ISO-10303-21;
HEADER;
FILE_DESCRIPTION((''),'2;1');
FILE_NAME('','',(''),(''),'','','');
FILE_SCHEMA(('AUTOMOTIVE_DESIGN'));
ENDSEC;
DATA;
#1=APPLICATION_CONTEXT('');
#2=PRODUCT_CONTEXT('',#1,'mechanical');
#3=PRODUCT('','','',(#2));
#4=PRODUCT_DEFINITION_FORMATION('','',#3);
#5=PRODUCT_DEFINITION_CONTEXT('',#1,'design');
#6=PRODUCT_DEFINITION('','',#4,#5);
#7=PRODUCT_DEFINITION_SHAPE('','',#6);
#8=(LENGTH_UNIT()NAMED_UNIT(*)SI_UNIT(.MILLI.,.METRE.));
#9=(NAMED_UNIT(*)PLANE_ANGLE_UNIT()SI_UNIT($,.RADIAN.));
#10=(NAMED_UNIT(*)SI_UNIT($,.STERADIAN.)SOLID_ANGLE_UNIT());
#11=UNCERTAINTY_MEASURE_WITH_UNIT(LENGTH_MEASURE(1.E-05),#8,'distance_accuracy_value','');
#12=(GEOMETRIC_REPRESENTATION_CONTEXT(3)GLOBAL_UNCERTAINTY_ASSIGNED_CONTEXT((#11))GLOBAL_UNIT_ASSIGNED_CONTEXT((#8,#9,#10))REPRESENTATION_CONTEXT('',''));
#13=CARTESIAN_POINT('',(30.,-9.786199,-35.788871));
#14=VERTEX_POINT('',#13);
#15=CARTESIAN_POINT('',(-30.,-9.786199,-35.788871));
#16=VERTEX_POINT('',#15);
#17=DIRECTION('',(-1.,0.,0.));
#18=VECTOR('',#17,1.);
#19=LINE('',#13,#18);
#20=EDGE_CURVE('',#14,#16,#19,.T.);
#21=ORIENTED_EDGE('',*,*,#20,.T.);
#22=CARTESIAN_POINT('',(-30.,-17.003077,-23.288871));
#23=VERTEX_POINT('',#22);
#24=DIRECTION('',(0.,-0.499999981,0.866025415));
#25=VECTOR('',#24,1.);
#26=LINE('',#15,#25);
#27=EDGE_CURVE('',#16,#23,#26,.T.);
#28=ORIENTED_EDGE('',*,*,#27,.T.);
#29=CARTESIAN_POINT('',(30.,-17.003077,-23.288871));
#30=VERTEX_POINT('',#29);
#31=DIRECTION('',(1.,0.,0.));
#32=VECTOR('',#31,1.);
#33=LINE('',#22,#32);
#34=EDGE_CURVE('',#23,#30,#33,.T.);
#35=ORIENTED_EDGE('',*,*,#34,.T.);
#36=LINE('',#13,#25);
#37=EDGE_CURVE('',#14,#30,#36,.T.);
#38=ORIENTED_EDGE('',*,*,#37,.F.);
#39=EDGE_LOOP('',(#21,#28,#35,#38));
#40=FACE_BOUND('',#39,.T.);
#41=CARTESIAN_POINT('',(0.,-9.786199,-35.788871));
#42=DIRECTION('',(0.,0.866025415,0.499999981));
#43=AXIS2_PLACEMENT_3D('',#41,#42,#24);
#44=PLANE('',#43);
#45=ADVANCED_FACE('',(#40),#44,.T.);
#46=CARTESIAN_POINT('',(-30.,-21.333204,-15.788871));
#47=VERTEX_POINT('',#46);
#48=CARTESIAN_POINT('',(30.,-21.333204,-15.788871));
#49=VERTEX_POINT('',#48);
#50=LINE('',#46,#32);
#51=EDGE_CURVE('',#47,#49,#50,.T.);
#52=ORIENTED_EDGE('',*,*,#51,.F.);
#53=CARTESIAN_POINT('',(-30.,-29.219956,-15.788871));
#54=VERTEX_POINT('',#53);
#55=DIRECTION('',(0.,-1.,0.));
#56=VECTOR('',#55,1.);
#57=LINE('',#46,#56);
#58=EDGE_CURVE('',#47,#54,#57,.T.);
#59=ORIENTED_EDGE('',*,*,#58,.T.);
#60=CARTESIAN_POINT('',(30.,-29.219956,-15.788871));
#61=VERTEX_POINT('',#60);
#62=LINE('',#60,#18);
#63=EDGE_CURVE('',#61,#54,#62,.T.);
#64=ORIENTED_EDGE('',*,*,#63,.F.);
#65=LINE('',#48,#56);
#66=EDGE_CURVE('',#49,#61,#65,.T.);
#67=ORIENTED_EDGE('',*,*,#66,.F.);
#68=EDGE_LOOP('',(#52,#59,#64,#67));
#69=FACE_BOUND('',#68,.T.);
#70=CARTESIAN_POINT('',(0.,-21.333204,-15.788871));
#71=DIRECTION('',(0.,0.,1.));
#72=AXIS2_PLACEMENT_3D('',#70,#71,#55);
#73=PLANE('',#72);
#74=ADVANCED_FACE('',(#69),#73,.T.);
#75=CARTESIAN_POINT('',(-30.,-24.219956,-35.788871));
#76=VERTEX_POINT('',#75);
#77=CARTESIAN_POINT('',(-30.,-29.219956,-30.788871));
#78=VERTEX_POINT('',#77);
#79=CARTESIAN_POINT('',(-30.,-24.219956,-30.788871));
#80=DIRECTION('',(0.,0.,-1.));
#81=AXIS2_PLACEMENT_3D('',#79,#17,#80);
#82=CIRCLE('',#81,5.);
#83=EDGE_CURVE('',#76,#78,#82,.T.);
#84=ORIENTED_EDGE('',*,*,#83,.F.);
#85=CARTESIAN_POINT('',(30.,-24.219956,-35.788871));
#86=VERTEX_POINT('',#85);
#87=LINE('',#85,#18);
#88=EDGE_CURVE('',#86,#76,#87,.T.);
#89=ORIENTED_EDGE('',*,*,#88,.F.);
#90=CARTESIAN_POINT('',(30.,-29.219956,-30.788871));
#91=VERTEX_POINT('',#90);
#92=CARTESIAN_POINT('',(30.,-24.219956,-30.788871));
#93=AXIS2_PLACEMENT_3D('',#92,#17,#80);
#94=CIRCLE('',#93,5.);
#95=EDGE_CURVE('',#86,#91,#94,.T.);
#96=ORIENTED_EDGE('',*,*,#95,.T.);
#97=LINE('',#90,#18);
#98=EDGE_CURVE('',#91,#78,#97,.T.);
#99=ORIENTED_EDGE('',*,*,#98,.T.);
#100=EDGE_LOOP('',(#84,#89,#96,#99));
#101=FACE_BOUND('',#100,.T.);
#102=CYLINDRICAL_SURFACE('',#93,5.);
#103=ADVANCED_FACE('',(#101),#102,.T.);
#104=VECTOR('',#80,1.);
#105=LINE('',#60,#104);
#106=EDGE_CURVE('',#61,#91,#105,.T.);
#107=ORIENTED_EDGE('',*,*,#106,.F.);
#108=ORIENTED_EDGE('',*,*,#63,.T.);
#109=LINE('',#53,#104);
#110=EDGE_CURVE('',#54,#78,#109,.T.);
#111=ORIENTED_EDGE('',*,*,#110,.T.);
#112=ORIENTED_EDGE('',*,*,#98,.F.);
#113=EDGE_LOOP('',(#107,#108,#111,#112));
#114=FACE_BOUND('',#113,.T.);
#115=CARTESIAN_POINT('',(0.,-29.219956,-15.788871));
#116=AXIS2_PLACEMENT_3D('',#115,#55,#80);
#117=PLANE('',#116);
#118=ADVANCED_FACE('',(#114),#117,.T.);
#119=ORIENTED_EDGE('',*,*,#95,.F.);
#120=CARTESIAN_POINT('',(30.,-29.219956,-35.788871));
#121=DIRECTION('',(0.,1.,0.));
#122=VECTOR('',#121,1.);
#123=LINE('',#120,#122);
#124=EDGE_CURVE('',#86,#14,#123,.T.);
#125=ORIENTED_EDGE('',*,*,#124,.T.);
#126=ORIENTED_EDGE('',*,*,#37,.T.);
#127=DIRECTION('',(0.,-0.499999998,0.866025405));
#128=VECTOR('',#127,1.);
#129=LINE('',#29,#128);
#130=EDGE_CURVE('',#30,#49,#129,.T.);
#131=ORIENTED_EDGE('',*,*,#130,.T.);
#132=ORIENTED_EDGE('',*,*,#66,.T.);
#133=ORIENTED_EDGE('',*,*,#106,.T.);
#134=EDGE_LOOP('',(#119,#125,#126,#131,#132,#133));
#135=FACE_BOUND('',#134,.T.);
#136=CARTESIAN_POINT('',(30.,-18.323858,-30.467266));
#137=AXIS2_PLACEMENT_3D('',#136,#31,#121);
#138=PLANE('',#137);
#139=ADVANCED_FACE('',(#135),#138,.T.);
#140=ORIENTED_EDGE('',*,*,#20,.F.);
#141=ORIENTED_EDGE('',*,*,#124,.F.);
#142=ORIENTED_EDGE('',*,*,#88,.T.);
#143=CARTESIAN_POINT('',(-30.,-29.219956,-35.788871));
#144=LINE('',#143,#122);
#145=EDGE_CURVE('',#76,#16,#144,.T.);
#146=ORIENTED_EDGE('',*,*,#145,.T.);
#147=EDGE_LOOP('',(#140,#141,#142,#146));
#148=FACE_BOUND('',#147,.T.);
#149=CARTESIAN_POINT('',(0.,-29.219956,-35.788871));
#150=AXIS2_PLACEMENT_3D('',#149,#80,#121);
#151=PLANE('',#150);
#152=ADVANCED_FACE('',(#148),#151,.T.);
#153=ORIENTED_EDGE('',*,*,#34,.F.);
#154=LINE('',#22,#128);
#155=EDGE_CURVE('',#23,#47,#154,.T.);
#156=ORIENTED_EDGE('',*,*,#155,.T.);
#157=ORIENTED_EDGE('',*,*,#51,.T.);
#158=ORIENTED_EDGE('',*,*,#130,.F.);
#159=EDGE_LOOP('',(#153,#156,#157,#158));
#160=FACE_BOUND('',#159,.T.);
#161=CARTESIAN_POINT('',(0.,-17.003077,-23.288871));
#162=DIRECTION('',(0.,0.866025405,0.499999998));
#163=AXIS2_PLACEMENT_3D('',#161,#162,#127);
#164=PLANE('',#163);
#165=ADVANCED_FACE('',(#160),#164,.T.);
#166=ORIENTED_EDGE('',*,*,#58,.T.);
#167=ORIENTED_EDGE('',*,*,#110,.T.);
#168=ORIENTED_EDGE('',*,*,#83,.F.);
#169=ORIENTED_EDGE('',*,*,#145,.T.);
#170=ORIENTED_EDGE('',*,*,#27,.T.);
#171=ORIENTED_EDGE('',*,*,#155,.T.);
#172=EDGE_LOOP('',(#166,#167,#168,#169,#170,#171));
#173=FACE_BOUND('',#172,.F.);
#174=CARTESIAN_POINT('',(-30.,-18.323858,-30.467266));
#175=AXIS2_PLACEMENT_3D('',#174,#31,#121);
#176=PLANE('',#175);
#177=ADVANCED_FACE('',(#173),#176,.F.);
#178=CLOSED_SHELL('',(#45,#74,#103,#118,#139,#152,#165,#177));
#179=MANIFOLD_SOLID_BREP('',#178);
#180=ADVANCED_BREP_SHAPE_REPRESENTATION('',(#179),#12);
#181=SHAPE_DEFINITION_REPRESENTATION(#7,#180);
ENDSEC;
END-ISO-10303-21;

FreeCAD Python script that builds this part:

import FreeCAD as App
import Part
import Sketcher
from FreeCAD import Vector
Q = App.Units.Quantity


def edges_at(feature, points):
    """Names of the edges that pass closest to the given points."""
    edges = feature.Shape.Edges
    near = lambda p: min(range(len(edges)), key=lambda i: edges[i].distToShape(Part.Vertex(*p))[0])
    return sorted({f"Edge{near(p) + 1}" for p in points})


def add_polygon(sketch, points):
    """Adds a closed chain of lines whose ends are joined by coincident constraints."""
    first, n = sketch.GeometryCount, len(points)
    for a, b in zip(points, points[1:] + points[:1]):
        sketch.addGeometry(Part.LineSegment(App.Vector(*a, 0), App.Vector(*b, 0)), False)
    for i in range(n):
        sketch.addConstraint(Sketcher.Constraint("Coincident", first + i, 2, first + (i + 1) % n, 1))

doc = App.newDocument("Part")
body = doc.addObject("PartDesign::Body", "Body")

sketch1 = doc.addObject("Sketcher::SketchObject", "Sketch")
body.addObject(sketch1)
sketch1.AttachmentSupport = (doc.YZ_Plane, [""])
sketch1.MapMode = "FlatFace"
add_polygon(sketch1, [(-9.786199, -35.788871), (-17.003077, -23.288871), (-21.333204, -15.788871), (-29.219956, -15.788871), (-29.219956, -35.788871)])
sketch1.addConstraint([
    Sketcher.Constraint("Horizontal", 2),
    Sketcher.Constraint("Vertical", 3),
    Sketcher.Constraint("Horizontal", 4),
    Sketcher.Constraint("Parallel", 0, 1),
    Sketcher.Constraint("DistanceY", 3, 2, 3, 1, 20.0),
    Sketcher.Constraint("Angle", 0, Q("119.999999 deg")),
    Sketcher.Constraint("DistanceY", 0, 2, 1, 2, 7.5),
    Sketcher.Constraint("DistanceX", 4, 2, -1, 1, 9.786199),
    Sketcher.Constraint("DistanceX", 2, 2, 2, 1, 7.886752),
    Sketcher.Constraint("DistanceY", 0, 2, -1, 1, 23.288871),
])
pad1 = doc.addObject("PartDesign::Pad", "Pad")
body.addObject(pad1)
pad1.Profile = sketch1
pad1.Length = 60
pad1.Midplane = True
doc.recompute()

fillet = doc.addObject("PartDesign::Fillet", "Fillet")
body.addObject(fillet)
fillet.Base = (pad1, edges_at(pad1, [(0, -29.22, -35.789)]))
fillet.Radius = 5

doc.recompute()
